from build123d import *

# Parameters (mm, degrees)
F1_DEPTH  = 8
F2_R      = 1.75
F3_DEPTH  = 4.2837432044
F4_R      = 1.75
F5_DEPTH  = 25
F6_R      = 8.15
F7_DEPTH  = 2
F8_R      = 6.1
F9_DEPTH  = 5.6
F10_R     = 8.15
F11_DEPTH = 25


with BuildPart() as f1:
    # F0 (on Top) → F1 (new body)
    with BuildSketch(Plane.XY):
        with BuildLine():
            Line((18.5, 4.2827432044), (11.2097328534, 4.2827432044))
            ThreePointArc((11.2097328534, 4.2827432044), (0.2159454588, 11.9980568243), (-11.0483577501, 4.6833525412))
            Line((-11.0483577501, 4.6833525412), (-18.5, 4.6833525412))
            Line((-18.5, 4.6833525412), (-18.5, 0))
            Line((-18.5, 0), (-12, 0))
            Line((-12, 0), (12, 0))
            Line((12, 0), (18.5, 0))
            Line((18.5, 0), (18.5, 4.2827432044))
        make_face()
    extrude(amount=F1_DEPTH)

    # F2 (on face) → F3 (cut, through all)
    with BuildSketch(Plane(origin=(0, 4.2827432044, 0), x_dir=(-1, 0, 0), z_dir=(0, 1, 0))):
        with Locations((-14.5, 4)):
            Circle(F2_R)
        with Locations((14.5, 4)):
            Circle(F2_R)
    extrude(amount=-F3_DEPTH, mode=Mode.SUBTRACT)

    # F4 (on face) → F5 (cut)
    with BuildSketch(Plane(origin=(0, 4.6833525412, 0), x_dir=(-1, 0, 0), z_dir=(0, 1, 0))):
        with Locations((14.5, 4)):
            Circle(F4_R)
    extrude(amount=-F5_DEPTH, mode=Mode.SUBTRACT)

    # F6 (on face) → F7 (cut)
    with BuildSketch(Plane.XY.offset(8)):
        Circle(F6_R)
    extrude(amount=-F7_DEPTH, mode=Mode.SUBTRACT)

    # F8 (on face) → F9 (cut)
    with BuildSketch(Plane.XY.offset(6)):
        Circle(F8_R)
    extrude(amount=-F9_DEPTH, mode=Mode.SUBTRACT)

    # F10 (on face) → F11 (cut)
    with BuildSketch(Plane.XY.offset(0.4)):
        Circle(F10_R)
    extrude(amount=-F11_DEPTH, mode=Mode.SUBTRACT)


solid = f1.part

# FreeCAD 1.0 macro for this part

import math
import FreeCAD as App
import Part
import Sketcher

V = App.Vector
Q = App.Units.Quantity

doc = App.newDocument("Part")
body = doc.addObject("PartDesign::Body", "Body")

sketch1 = body.newObject("Sketcher::SketchObject", "Sketch")
sketch1.AttachmentSupport = (doc.getObject("XY_Plane"), [""])
sketch1.MapMode = "FlatFace"
sketch1.addGeometry([
    Part.LineSegment(V(18.5, 4.3, 0), V(11.2, 4.3, 0)),
    Part.ArcOfCircle(Part.Circle(V(0, 0, 0), V(0, 0, 1), 12), math.radians(21), math.radians(157)),
    Part.LineSegment(V(-11, 4.7, 0), V(-18.5, 4.7, 0)),
    Part.LineSegment(V(-18.5, 4.7, 0), V(-18.5, 0, 0)),
    Part.LineSegment(V(-18.5, 0, 0), V(18.5, 0, 0)),
    Part.LineSegment(V(18.5, 0, 0), V(18.5, 4.3, 0)),
], False)
sketch1.addConstraint([
    Sketcher.Constraint("Coincident", 0, 2, 1, 1),
    Sketcher.Constraint("Coincident", 1, 2, 2, 1),
    Sketcher.Constraint("Coincident", 2, 2, 3, 1),
    Sketcher.Constraint("Coincident", 3, 2, 4, 1),
    Sketcher.Constraint("Coincident", 4, 2, 5, 1),
    Sketcher.Constraint("Coincident", 5, 2, 0, 1),
    Sketcher.Constraint("Horizontal", 0),
    Sketcher.Constraint("Horizontal", 2),
    Sketcher.Constraint("Vertical", 3),
    Sketcher.Constraint("Horizontal", 4),
    Sketcher.Constraint("Vertical", 5),
    Sketcher.Constraint("Coincident", 1, 3, -1, 1),
    Sketcher.Constraint("Symmetric", 3, 2, 4, 2, -1, 1),
    Sketcher.Constraint("Radius", 1, Q("12 mm")),
    Sketcher.Constraint("DistanceX", 4, 1, 4, 2, Q("37 mm")),
    Sketcher.Constraint("DistanceX", 0, 2, 0, 1, Q("7.290267 mm")),
    Sketcher.Constraint("DistanceX", 2, 2, 2, 1, Q("7.451642 mm")),
])
pad1 = body.newObject("PartDesign::Pad", "Pad")
pad1.Profile = sketch1
pad1.Length = 8

sketch2 = body.newObject("Sketcher::SketchObject", "Sketch001")
sketch2.AttachmentSupport = (doc.getObject("XZ_Plane"), [""])
sketch2.MapMode = "FlatFace"
sketch2.AttachmentOffset = App.Placement(V(0, 0, -4.282743), App.Rotation())
sketch2.addGeometry([
    Part.Circle(V(14.5, 4, 0), V(0, 0, 1), 1.8),
    Part.Circle(V(-14.5, 4, 0), V(0, 0, 1), 1.8),
], False)
sketch2.addConstraint([
    Sketcher.Constraint("Equal", 0, 1),
    Sketcher.Constraint("Symmetric", 0, 3, 1, 3, -2),
    Sketcher.Constraint("Diameter", 0, Q("3.5 mm")),
    Sketcher.Constraint("DistanceY", -1, 1, 0, 3, Q("4 mm")),
    Sketcher.Constraint("DistanceX", 1, 3, 0, 3, Q("29 mm")),
])
pocket1 = body.newObject("PartDesign::Pocket", "Pocket")
pocket1.Profile = sketch2
pocket1.Type = "ThroughAll"
pocket1.Reversed = True

sketch3 = body.newObject("Sketcher::SketchObject", "Sketch002")
sketch3.AttachmentSupport = (doc.getObject("XZ_Plane"), [""])
sketch3.MapMode = "FlatFace"
sketch3.AttachmentOffset = App.Placement(V(0, 0, -4.683353), App.Rotation())
sketch3.addGeometry(Part.Circle(V(-14.5, 4, 0), V(0, 0, 1), 1.8), False)
sketch3.addConstraint([
    Sketcher.Constraint("Diameter", 0, Q("3.5 mm")),
    Sketcher.Constraint("DistanceY", -1, 1, 0, 3, Q("4 mm")),
    Sketcher.Constraint("DistanceX", 0, 3, -1, 1, Q("14.5 mm")),
])
pocket2 = body.newObject("PartDesign::Pocket", "Pocket001")
pocket2.Profile = sketch3
pocket2.Length = 25
pocket2.Reversed = True

sketch4 = body.newObject("Sketcher::SketchObject", "Sketch003")
sketch4.AttachmentSupport = (doc.getObject("XY_Plane"), [""])
sketch4.MapMode = "FlatFace"
sketch4.AttachmentOffset = App.Placement(V(0, 0, 8), App.Rotation())
sketch4.addGeometry(Part.Circle(V(0, 0, 0), V(0, 0, 1), 8), False)
sketch4.addConstraint([
    Sketcher.Constraint("Coincident", 0, 3, -1, 1),
    Sketcher.Constraint("Diameter", 0, Q("16.3 mm")),
])
pocket3 = body.newObject("PartDesign::Pocket", "Pocket002")
pocket3.Profile = sketch4
pocket3.Length = 2

sketch5 = body.newObject("Sketcher::SketchObject", "Sketch004")
sketch5.AttachmentSupport = (doc.getObject("XY_Plane"), [""])
sketch5.MapMode = "FlatFace"
sketch5.AttachmentOffset = App.Placement(V(0, 0, 6), App.Rotation())
sketch5.addGeometry(Part.Circle(V(0, 0, 0), V(0, 0, 1), 6), False)
sketch5.addConstraint([
    Sketcher.Constraint("Coincident", 0, 3, -1, 1),
    Sketcher.Constraint("Diameter", 0, Q("12.2 mm")),
])
pocket4 = body.newObject("PartDesign::Pocket", "Pocket003")
pocket4.Profile = sketch5
pocket4.Length = 5.6

sketch6 = body.newObject("Sketcher::SketchObject", "Sketch005")
sketch6.AttachmentSupport = (doc.getObject("XY_Plane"), [""])
sketch6.MapMode = "FlatFace"
sketch6.AttachmentOffset = App.Placement(V(0, 0, 0.4), App.Rotation())
sketch6.addGeometry(Part.Circle(V(0, 0, 0), V(0, 0, 1), 8), False)
sketch6.addConstraint([
    Sketcher.Constraint("Coincident", 0, 3, -1, 1),
    Sketcher.Constraint("Diameter", 0, Q("16.3 mm")),
])
pocket5 = body.newObject("PartDesign::Pocket", "Pocket004")
pocket5.Profile = sketch6
pocket5.Length = 25

doc.recompute()
